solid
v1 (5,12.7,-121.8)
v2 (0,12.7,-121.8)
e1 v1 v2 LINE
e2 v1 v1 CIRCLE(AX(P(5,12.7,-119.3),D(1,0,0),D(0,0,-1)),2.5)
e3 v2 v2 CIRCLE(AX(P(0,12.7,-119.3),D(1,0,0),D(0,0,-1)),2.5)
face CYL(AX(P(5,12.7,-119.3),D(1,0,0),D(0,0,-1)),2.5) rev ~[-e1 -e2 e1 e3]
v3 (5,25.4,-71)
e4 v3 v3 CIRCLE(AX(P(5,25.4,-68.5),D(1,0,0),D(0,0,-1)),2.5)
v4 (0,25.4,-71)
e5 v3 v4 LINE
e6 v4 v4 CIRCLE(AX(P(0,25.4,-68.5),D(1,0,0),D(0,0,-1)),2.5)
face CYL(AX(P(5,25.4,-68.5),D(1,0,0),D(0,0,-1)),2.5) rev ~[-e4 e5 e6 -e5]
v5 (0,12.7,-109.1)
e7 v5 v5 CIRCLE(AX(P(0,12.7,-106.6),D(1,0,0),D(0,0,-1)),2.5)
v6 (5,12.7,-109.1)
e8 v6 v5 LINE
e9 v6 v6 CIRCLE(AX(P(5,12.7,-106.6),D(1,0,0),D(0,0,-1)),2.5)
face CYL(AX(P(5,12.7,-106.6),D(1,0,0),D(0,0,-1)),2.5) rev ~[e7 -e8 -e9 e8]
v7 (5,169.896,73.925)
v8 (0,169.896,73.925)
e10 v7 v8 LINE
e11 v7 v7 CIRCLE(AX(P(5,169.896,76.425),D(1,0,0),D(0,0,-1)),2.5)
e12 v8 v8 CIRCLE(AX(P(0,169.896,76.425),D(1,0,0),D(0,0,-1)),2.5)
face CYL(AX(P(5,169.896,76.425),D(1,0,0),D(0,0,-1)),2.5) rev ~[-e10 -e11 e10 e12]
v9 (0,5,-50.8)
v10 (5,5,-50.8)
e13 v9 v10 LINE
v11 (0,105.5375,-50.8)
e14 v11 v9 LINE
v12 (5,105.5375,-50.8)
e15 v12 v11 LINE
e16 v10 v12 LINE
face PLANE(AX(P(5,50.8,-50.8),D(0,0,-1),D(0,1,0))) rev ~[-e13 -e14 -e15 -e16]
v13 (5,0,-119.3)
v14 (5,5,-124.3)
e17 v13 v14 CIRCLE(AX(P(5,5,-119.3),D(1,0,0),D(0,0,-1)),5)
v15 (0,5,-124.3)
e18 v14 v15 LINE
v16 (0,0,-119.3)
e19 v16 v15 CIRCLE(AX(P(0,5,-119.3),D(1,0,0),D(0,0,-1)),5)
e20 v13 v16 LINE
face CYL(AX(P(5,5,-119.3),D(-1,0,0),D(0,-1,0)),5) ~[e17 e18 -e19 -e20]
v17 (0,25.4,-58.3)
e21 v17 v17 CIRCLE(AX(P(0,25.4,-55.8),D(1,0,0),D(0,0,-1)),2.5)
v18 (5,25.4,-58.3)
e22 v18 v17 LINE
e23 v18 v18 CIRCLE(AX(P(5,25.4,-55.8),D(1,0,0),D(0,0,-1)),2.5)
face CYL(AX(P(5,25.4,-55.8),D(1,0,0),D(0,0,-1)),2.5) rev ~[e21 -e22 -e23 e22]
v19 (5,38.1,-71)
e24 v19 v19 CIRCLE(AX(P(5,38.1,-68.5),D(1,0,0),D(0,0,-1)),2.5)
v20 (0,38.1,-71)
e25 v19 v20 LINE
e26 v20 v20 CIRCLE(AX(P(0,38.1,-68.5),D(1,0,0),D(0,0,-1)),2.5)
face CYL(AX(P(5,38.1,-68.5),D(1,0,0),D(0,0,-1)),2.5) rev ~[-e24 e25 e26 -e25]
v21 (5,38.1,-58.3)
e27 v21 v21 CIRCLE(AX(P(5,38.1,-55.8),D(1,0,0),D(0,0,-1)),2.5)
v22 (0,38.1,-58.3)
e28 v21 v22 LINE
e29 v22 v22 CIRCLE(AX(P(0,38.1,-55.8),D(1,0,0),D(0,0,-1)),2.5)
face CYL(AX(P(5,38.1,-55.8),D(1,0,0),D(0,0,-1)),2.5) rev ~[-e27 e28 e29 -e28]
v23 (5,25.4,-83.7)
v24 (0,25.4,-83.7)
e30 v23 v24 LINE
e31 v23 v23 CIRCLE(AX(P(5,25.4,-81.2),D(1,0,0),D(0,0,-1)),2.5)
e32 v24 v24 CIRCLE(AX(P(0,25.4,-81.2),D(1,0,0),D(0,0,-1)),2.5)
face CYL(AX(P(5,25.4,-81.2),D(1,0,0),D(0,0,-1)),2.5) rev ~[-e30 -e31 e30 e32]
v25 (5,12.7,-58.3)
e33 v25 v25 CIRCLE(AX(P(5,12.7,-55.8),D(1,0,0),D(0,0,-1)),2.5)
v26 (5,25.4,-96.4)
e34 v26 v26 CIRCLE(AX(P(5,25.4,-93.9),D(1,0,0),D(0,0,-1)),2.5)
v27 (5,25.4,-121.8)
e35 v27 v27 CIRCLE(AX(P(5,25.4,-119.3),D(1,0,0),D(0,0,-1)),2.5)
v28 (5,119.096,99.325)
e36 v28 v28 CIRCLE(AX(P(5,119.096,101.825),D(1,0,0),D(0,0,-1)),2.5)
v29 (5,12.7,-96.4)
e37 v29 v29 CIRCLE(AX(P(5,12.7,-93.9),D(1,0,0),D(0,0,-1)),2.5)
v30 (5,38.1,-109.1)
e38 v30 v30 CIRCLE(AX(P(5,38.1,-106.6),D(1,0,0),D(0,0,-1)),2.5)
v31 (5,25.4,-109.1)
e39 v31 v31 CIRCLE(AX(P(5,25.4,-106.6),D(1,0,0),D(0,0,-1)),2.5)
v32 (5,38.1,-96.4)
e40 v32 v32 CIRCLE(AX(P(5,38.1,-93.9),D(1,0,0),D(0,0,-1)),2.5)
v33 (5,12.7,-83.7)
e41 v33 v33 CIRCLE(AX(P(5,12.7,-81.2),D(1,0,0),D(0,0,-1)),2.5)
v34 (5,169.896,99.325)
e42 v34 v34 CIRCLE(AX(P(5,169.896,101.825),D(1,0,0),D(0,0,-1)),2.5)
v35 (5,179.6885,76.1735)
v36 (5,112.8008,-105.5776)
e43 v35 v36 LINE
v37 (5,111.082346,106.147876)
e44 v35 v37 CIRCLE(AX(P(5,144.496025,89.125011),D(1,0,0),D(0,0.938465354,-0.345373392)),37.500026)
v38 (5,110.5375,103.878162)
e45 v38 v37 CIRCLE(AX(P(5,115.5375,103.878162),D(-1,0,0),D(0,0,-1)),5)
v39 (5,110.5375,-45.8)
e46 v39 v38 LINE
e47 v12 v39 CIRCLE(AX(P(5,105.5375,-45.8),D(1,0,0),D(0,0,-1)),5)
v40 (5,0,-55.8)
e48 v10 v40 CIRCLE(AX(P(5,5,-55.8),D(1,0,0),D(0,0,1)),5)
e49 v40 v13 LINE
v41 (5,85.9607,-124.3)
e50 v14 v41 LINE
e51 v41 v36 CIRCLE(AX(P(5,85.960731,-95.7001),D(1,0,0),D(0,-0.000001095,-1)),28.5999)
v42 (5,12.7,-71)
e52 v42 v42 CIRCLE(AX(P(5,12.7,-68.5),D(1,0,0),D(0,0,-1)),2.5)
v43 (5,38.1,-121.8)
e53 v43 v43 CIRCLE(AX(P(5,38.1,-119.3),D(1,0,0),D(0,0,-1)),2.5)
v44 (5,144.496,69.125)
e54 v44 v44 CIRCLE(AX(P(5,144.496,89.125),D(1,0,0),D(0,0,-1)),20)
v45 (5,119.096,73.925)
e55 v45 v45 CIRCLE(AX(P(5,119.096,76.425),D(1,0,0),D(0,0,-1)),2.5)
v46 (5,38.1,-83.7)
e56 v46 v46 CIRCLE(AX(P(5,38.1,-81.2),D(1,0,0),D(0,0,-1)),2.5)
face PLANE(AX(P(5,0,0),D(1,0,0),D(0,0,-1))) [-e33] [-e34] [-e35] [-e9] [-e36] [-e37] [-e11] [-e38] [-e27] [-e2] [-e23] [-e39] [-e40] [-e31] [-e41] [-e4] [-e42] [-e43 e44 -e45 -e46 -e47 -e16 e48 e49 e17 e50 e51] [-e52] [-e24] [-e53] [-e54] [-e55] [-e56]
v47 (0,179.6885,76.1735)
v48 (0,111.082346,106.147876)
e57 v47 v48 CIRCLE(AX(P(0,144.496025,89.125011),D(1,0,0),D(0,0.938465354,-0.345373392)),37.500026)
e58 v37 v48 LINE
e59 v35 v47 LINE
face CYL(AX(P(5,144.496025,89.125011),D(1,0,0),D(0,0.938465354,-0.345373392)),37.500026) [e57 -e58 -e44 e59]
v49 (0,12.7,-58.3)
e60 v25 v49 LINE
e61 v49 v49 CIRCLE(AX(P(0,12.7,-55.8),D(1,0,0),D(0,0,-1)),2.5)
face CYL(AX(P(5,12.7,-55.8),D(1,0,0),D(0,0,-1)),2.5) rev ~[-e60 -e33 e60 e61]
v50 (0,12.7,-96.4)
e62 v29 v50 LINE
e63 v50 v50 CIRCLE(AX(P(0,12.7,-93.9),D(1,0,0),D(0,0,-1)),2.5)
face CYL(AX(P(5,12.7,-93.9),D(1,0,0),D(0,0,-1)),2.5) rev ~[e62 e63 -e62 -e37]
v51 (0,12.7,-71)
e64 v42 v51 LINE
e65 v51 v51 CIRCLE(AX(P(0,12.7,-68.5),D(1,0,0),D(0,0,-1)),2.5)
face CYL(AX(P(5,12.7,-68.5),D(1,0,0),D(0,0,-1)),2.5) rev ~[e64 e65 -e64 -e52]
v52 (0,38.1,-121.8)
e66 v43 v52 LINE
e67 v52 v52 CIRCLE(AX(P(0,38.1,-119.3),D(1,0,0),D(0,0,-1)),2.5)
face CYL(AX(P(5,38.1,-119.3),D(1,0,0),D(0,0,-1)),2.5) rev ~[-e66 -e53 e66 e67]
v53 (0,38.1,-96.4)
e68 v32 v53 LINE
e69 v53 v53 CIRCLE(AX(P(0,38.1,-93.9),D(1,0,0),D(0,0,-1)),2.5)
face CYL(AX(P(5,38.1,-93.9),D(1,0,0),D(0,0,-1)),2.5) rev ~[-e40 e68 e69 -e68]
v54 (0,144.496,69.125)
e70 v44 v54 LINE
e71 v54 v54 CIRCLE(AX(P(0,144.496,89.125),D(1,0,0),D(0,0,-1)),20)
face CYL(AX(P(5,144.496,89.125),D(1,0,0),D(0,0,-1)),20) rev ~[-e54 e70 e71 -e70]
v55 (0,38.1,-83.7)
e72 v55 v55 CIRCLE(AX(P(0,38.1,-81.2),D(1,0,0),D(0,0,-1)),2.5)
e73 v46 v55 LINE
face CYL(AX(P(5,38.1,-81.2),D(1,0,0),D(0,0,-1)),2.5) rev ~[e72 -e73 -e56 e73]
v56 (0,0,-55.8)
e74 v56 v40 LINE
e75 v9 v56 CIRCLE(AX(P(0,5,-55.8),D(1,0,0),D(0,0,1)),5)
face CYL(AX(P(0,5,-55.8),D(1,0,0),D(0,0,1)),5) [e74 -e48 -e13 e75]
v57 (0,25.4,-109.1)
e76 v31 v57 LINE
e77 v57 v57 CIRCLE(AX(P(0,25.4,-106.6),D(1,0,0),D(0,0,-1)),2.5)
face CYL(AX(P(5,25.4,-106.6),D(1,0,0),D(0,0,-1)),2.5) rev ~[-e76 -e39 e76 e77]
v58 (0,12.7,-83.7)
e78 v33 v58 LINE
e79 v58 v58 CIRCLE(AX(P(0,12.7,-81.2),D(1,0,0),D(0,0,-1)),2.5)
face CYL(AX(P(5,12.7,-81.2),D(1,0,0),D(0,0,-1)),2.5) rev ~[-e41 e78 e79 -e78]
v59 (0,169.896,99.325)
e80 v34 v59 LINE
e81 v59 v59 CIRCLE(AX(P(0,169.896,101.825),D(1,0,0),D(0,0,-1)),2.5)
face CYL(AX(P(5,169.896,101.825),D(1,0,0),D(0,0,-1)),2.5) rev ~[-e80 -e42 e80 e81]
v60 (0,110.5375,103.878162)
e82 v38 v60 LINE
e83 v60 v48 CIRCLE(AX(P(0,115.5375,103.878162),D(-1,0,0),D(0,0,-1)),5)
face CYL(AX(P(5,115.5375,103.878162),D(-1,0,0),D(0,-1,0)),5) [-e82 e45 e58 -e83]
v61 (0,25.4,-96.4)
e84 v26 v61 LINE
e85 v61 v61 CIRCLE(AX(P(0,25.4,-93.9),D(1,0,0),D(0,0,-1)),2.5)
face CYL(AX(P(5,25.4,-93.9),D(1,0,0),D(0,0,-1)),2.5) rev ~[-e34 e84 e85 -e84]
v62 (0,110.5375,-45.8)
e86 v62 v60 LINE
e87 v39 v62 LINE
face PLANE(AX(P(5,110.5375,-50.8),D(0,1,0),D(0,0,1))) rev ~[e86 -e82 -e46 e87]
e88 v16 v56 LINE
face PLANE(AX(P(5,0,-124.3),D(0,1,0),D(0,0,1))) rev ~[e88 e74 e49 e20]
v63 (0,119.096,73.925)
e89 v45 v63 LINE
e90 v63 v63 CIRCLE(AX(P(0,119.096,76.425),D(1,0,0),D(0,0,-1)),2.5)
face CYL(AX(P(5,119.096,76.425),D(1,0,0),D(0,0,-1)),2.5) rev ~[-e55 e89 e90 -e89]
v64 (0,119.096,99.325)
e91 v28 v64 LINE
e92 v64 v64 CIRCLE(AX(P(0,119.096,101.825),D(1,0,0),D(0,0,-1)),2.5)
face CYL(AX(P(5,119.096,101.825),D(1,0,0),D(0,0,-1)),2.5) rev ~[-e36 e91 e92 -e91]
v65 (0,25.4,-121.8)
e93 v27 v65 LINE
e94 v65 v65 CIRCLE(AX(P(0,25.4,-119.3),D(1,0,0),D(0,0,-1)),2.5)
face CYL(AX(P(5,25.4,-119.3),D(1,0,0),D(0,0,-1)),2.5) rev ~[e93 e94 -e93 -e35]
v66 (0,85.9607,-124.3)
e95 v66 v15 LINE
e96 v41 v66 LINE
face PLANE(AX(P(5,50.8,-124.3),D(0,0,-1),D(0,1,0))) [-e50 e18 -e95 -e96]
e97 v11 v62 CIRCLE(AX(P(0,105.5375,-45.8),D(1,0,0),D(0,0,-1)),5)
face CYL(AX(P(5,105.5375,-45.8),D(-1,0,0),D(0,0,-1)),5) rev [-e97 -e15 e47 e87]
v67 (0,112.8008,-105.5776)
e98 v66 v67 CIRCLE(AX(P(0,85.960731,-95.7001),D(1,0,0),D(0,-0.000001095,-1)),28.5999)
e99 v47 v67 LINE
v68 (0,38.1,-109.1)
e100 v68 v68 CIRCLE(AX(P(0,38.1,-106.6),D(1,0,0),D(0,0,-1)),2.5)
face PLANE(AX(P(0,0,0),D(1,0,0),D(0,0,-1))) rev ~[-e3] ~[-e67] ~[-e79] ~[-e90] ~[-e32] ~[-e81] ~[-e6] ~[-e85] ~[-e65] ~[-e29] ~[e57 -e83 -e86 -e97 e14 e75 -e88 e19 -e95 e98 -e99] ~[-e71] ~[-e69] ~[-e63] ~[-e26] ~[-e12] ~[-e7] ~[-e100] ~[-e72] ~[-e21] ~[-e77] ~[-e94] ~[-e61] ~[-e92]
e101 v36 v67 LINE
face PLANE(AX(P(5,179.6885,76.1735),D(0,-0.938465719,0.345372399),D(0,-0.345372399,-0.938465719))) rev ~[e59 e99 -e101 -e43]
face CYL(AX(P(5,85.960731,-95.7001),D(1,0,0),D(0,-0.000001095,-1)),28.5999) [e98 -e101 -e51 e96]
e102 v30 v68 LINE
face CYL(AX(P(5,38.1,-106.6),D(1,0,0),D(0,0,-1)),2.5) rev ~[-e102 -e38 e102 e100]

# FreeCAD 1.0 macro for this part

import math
import FreeCAD as App
import Part
import Sketcher

V = App.Vector
Q = App.Units.Quantity


def edges_at(feature, points):
    """Names of the edges that pass closest to the given points."""
    edges = feature.Shape.Edges
    near = lambda p: min(range(len(edges)), key=lambda i: edges[i].distToShape(Part.Vertex(*p))[0])
    return sorted({f"Edge{near(p) + 1}" for p in points})


def add_polygon(sketch, points):
    """Adds a closed chain of lines whose ends are joined by coincident constraints."""
    first, n = sketch.GeometryCount, len(points)
    for a, b in zip(points, points[1:] + points[:1]):
        sketch.addGeometry(Part.LineSegment(App.Vector(*a, 0), App.Vector(*b, 0)), False)
    for i in range(n):
        sketch.addConstraint(Sketcher.Constraint("Coincident", first + i, 2, first + (i + 1) % n, 1))

doc = App.newDocument("Part")
body = doc.addObject("PartDesign::Body", "Body")

sketch1 = body.newObject("Sketcher::SketchObject", "Sketch")
sketch1.AttachmentSupport = (doc.getObject("YZ_Plane"), [""])
sketch1.MapMode = "FlatFace"
add_polygon(sketch1, [(51, 0), (0, 0), (0, -86), (51, -86)])
sketch1.addConstraint([
    Sketcher.Constraint("Horizontal", 0),
    Sketcher.Constraint("Vertical", 1),
    Sketcher.Constraint("Horizontal", 2),
    Sketcher.Constraint("Vertical", 3),
    Sketcher.Constraint("Coincident", 0, 2, -1, 1),
    Sketcher.Constraint("DistanceX", 0, 2, 0, 1, Q("50.8 mm")),
    Sketcher.Constraint("DistanceY", 1, 2, 1, 1, Q("86.2 mm")),
])
pad1 = body.newObject("PartDesign::Pad", "Pad")
pad1.Profile = sketch1
pad1.Length = 5

sketch2 = body.newObject("Sketcher::SketchObject", "Sketch001")
sketch2.AttachmentSupport = (doc.getObject("YZ_Plane"), [""])
sketch2.MapMode = "FlatFace"
sketch2.AttachmentOffset = App.Placement(V(0, 0, 5), App.Rotation())
sketch2.addGeometry([
    Part.Circle(V(12.7, -5, 0), V(0, 0, 1), 2.5),
    Part.Circle(V(25.4, -5, 0), V(0, 0, 1), 2.5),
    Part.Circle(V(38.1, -5, 0), V(0, 0, 1), 2.5),
], False)
sketch2.addConstraint([
    Sketcher.Constraint("Equal", 0, 1),
    Sketcher.Constraint("Equal", 1, 2),
    Sketcher.Constraint("Horizontal", 0, 3, 1, 3),
    Sketcher.Constraint("Horizontal", 1, 3, 2, 3),
    Sketcher.Constraint("Diameter", 0, Q("5 mm")),
    Sketcher.Constraint("DistanceY", 0, 3, -1, 1, Q("5 mm")),
    Sketcher.Constraint("DistanceX", -1, 1, 0, 3, Q("12.7 mm")),
    Sketcher.Constraint("DistanceX", 0, 3, 1, 3, Q("12.7 mm")),
    Sketcher.Constraint("DistanceX", 1, 3, 2, 3, Q("12.7 mm")),
])
pocket1 = body.newObject("PartDesign::Pocket", "Pocket")
pocket1.Profile = sketch2
pocket1.Length = 6
doc.recompute()

linearpattern = body.newObject("PartDesign::LinearPattern", "LinearPattern")
linearpattern.Originals = [pocket1]
linearpattern.Direction = (doc.getObject("Z_Axis"), [""])
linearpattern.Mode = "offset"
linearpattern.Offset = 12.7
linearpattern.Occurrences = 7
linearpattern.Reversed = True
body.Tip = linearpattern

sketch3 = body.newObject("Sketcher::SketchObject", "Sketch002")
sketch3.AttachmentSupport = (doc.getObject("YZ_Plane"), [""])
sketch3.MapMode = "FlatFace"
add_polygon(sketch3, [(0, 0), (51, 0), (51, -51), (0, -51)])
sketch3.addConstraint([
    Sketcher.Constraint("Horizontal", 0),
    Sketcher.Constraint("Vertical", 1),
    Sketcher.Constraint("Horizontal", 2),
    Sketcher.Constraint("Vertical", 3),
    Sketcher.Constraint("Coincident", 3, 2, -1, 1),
    Sketcher.Constraint("Equal", 2, 1),
    Sketcher.Constraint("DistanceX", 0, 1, 0, 2, Q("50.8 mm")),
])
pocket2 = body.newObject("PartDesign::Pocket", "Pocket001")
pocket2.Profile = sketch3
pocket2.Length = 10
pocket2.Reversed = True

sketch4 = body.newObject("Sketcher::SketchObject", "Sketch003")
sketch4.AttachmentSupport = (doc.getObject("YZ_Plane"), [""])
sketch4.MapMode = "FlatFace"
sketch4.AttachmentOffset = App.Placement(V(0, 0, 5), App.Rotation())
add_polygon(sketch4, [(50.8, -86.2), (0, -86.2), (0, -124.3), (50.8, -124.3)])
sketch4.addGeometry(Part.Circle(V(12.7, -93.9, 0), V(0, 0, 1), 2.5), False)
sketch4.addGeometry(Part.Circle(V(25.4, -93.9, 0), V(0, 0, 1), 2.5), False)
sketch4.addGeometry(Part.Circle(V(12.7, -106.6, 0), V(0, 0, 1), 2.5), False)
sketch4.addGeometry(Part.Circle(V(12.7, -119.3, 0), V(0, 0, 1), 2.5), False)
sketch4.addGeometry(Part.Circle(V(25.4, -106.6, 0), V(0, 0, 1), 2.5), False)
sketch4.addGeometry(Part.Circle(V(25.4, -119.3, 0), V(0, 0, 1), 2.5), False)
sketch4.addGeometry(Part.Circle(V(38.1, -93.9, 0), V(0, 0, 1), 2.5), False)
sketch4.addGeometry(Part.Circle(V(38.1, -106.6, 0), V(0, 0, 1), 2.5), False)
sketch4.addGeometry(Part.Circle(V(38.1, -119.3, 0), V(0, 0, 1), 2.5), False)
sketch4.addConstraint([
    Sketcher.Constraint("Horizontal", 0),
    Sketcher.Constraint("Vertical", 1),
    Sketcher.Constraint("Horizontal", 2),
    Sketcher.Constraint("Vertical", 3),
    Sketcher.Constraint("Equal", 4, 5),
    Sketcher.Constraint("Equal", 5, 6),
    Sketcher.Constraint("Equal", 6, 7),
    Sketcher.Constraint("Equal", 7, 8),
    Sketcher.Constraint("Equal", 8, 9),
    Sketcher.Constraint("Equal", 9, 10),
    Sketcher.Constraint("Equal", 10, 11),
    Sketcher.Constraint("Equal", 11, 12),
    Sketcher.Constraint("PointOnObject", 0, 2, -2),
    Sketcher.Constraint("Horizontal", 4, 3, 5, 3),
    Sketcher.Constraint("Horizontal", 6, 3, 8, 3),
    Sketcher.Constraint("Horizontal", 7, 3, 9, 3),
    Sketcher.Constraint("Horizontal", 5, 3, 10, 3),
    Sketcher.Constraint("Horizontal", 8, 3, 11, 3),
    Sketcher.Constraint("Horizontal", 9, 3, 12, 3),
    Sketcher.Constraint("Vertical", 4, 3, 6, 3),
    Sketcher.Constraint("Vertical", 6, 3, 7, 3),
    Sketcher.Constraint("Vertical", 5, 3, 8, 3),
    Sketcher.Constraint("Vertical", 8, 3, 9, 3),
    Sketcher.Constraint("Vertical", 10, 3, 11, 3),
    Sketcher.Constraint("Vertical", 11, 3, 12, 3),
    Sketcher.Constraint("Diameter", 4, Q("5 mm")),
    Sketcher.Constraint("DistanceX", 0, 2, 0, 1, Q("50.8 mm")),
    Sketcher.Constraint("DistanceY", 1, 2, 7, 3, Q("5 mm")),
    Sketcher.Constraint("DistanceY", 1, 2, 1, 1, Q("38.1 mm")),
    Sketcher.Constraint("DistanceX", -1, 1, 4, 3, Q("12.7 mm")),
    Sketcher.Constraint("DistanceY", 4, 3, -1, 1, Q("93.9 mm")),
    Sketcher.Constraint("DistanceX", -1, 1, 5, 3, Q("25.4 mm")),
    Sketcher.Constraint("DistanceY", 6, 3, -1, 1, Q("106.6 mm")),
    Sketcher.Constraint("DistanceY", 7, 3, -1, 1, Q("119.3 mm")),
    Sketcher.Constraint("DistanceX", -1, 1, 10, 3, Q("38.1 mm")),
])
pad2 = body.newObject("PartDesign::Pad", "Pad001")
pad2.Profile = sketch4
pad2.Length = 5
pad2.Reversed = True

sketch5 = body.newObject("Sketcher::SketchObject", "Sketch004")
sketch5.AttachmentSupport = (doc.getObject("YZ_Plane"), [""])
sketch5.MapMode = "FlatFace"
sketch5.AttachmentOffset = App.Placement(V(0, 0, 5), App.Rotation())
sketch5.addGeometry([
    Part.LineSegment(V(50.8, -50.8, 0), V(50.8, -124.3, 0)),
    Part.LineSegment(V(50.8, -124.3, 0), V(86, -124.3, 0)),
    Part.ArcOfCircle(Part.Circle(V(86, -95.7, 0), V(0, 0, 1), 28.6), math.radians(-90), math.radians(-20)),
    Part.LineSegment(V(112.8, -105.6, 0), V(179.7, 76.2, 0)),
    Part.ArcOfCircle(Part.Circle(V(144.5, 89.1, 0), V(0, 0, 1), 37.5), math.radians(-20), math.radians(155)),
    Part.LineSegment(V(110.5, 105, 0), V(110.5, -50.8, 0)),
    Part.LineSegment(V(110.5, -50.8, 0), V(50.8, -50.8, 0)),
    Part.Circle(V(60.6, -95.7, 0), V(0, 0, 1), 2),
    Part.Circle(V(68, -113.7, 0), V(0, 0, 1), 2),
    Part.Circle(V(86, -95.7, 0), V(0, 0, 1), 14.2),
    Part.Circle(V(103.9, -77.7, 0), V(0, 0, 1), 2),
    Part.Circle(V(111.4, -95.7, 0), V(0, 0, 1), 2),
    Part.Circle(V(119.1, 101.8, 0), V(0, 0, 1), 2.5),
    Part.Circle(V(119.1, 76.4, 0), V(0, 0, 1), 2.5),
    Part.Circle(V(144.5, 89.1, 0), V(0, 0, 1), 20),
    Part.Circle(V(169.9, 101.8, 0), V(0, 0, 1), 2.5),
    Part.Circle(V(169.9, 76.4, 0), V(0, 0, 1), 2.5),
], False)
sketch5.addConstraint([
    Sketcher.Constraint("Coincident", 0, 2, 1, 1),
    Sketcher.Constraint("Tangent", 1, 2, 2, 1),
    Sketcher.Constraint("Tangent", 2, 2, 3, 1),
    Sketcher.Constraint("Tangent", 3, 2, 4, 1),
    Sketcher.Constraint("Coincident", 4, 2, 5, 1),
    Sketcher.Constraint("Coincident", 5, 2, 6, 1),
    Sketcher.Constraint("Coincident", 6, 2, 0, 1),
    Sketcher.Constraint("Vertical", 0),
    Sketcher.Constraint("Horizontal", 1),
    Sketcher.Constraint("Vertical", 5),
    Sketcher.Constraint("Horizontal", 6),
    Sketcher.Constraint("Coincident", 9, 3, 2, 3),
    Sketcher.Constraint("Coincident", 14, 3, 4, 3),
    Sketcher.Constraint("Equal", 7, 8),
    Sketcher.Constraint("Equal", 8, 10),
    Sketcher.Constraint("Equal", 10, 11),
    Sketcher.Constraint("Equal", 12, 13),
    Sketcher.Constraint("Equal", 13, 15),
    Sketcher.Constraint("Equal", 15, 16),
    Sketcher.Constraint("Horizontal", 2, 3, 7, 3),
    Sketcher.Constraint("Horizontal", 9, 3, 11, 3),
    Sketcher.Constraint("Horizontal", 12, 3, 15, 3),
    Sketcher.Constraint("Horizontal", 13, 3, 16, 3),
    Sketcher.Constraint("Vertical", 12, 3, 13, 3),
    Sketcher.Constraint("Vertical", 15, 3, 16, 3),
    Sketcher.Constraint("Diameter", 14, Q("40 mm")),
    Sketcher.Constraint("Diameter", 9, Q("28.5 mm")),
    Sketcher.Constraint("Radius", 4, Q("37.5 mm")),
    Sketcher.Constraint("Diameter", 12, Q("5 mm")),
    Sketcher.Constraint("Radius", 2, Q("28.6 mm")),
    Sketcher.Constraint("DistanceY", 0, 2, 0, 1, Q("73.5 mm")),
    Sketcher.Constraint("Diameter", 7, Q("4.0386 mm")),
    Sketcher.Constraint("DistanceY", 2, 3, -1, 1, Q("95.7 mm")),
    Sketcher.Constraint("DistanceX", -1, 1, 0, 2, Q("50.8 mm")),
    Sketcher.Constraint("DistanceX", 7, 3, 2, 3, Q("25.4 mm")),
    Sketcher.Constraint("DistanceX", 2, 3, 11, 3, Q("25.4 mm")),
    Sketcher.Constraint("DistanceX", 12, 3, 4, 3, Q("25.4 mm")),
    Sketcher.Constraint("DistanceY", 4, 3, 12, 3, Q("12.7 mm")),
    Sketcher.Constraint("DistanceY", 13, 3, 12, 3, Q("25.4 mm")),
    Sketcher.Constraint("DistanceX", 4, 3, 15, 3, Q("25.4 mm")),
    Sketcher.Constraint("DistanceX", 1, 1, 1, 2, Q("35.1607 mm")),
    Sketcher.Constraint("DistanceX", 6, 2, 6, 1, Q("59.7375 mm")),
    Sketcher.Constraint("DistanceY", 5, 2, 5, 1, Q("155.8332 mm")),
    Sketcher.Constraint("DistanceX", -1, 1, 4, 3, Q("144.496 mm")),
    Sketcher.Constraint("DistanceX", 8, 3, 10, 3, Q("35.921 mm")),
    Sketcher.Constraint("DistanceY", 8, 3, 10, 3, Q("35.921 mm")),
    Sketcher.Constraint("DistanceY", 2, 2, 10, 3, Q("27.838 mm")),
    Sketcher.Constraint("DistanceX", -1, 1, 8, 3, Q("68.0002 mm")),
])
pad3 = body.newObject("PartDesign::Pad", "Pad002")
pad3.Profile = sketch5
pad3.Length = 5
pad3.Reversed = True
doc.recompute()

fillet = body.newObject("PartDesign::Fillet", "Fillet")
fillet.Base = (pad3, edges_at(pad3, [
    (2.5, 110.537, -50.8),
    (2.5, 110.537, 105.033),
    (2.5, 0, -50.8),
    (2.5, 0, -124.3),
]))
fillet.Radius = 5

sketch6 = body.newObject("Sketcher::SketchObject", "Sketch005")
sketch6.AttachmentSupport = (doc.getObject("YZ_Plane"), [""])
sketch6.MapMode = "FlatFace"
sketch6.addGeometry([
    Part.Circle(V(86, -95.7, 0), V(0, 0, 1), 14.2),
    Part.Circle(V(68, -113.7, 0), V(0, 0, 1), 2),
    Part.Circle(V(60.6, -95.7, 0), V(0, 0, 1), 2),
    Part.Circle(V(111.4, -95.7, 0), V(0, 0, 1), 2),
    Part.Circle(V(103.9, -77.7, 0), V(0, 0, 1), 2),
], False)
sketch6.addConstraint([
    Sketcher.Constraint("Equal", 1, 2),
    Sketcher.Constraint("Equal", 2, 3),
    Sketcher.Constraint("Equal", 3, 4),
    Sketcher.Constraint("Horizontal", 0, 3, 2, 3),
    Sketcher.Constraint("Horizontal", 2, 3, 3, 3),
    Sketcher.Constraint("Diameter", 0, Q("28.5 mm")),
    Sketcher.Constraint("Diameter", 1, Q("4.0386 mm")),
    Sketcher.Constraint("DistanceY", 0, 3, -1, 1, Q("95.7 mm")),
    Sketcher.Constraint("DistanceX", 2, 3, 0, 3, Q("25.4 mm")),
    Sketcher.Constraint("DistanceX", 0, 3, 3, 3, Q("25.4 mm")),
    Sketcher.Constraint("DistanceX", 1, 3, 4, 3, Q("35.921 mm")),
    Sketcher.Constraint("DistanceY", 1, 3, 4, 3, Q("35.921 mm")),
    Sketcher.Constraint("DistanceX", -1, 1, 0, 3, Q("85.9607 mm")),
    Sketcher.Constraint("DistanceX", -1, 1, 1, 3, Q("68.0002 mm")),
    Sketcher.Constraint("DistanceY", 1, 3, -1, 1, Q("113.6605 mm")),
])
pad4 = body.newObject("PartDesign::Pad", "Pad003")
pad4.Profile = sketch6
pad4.Length = 5

doc.recompute()
